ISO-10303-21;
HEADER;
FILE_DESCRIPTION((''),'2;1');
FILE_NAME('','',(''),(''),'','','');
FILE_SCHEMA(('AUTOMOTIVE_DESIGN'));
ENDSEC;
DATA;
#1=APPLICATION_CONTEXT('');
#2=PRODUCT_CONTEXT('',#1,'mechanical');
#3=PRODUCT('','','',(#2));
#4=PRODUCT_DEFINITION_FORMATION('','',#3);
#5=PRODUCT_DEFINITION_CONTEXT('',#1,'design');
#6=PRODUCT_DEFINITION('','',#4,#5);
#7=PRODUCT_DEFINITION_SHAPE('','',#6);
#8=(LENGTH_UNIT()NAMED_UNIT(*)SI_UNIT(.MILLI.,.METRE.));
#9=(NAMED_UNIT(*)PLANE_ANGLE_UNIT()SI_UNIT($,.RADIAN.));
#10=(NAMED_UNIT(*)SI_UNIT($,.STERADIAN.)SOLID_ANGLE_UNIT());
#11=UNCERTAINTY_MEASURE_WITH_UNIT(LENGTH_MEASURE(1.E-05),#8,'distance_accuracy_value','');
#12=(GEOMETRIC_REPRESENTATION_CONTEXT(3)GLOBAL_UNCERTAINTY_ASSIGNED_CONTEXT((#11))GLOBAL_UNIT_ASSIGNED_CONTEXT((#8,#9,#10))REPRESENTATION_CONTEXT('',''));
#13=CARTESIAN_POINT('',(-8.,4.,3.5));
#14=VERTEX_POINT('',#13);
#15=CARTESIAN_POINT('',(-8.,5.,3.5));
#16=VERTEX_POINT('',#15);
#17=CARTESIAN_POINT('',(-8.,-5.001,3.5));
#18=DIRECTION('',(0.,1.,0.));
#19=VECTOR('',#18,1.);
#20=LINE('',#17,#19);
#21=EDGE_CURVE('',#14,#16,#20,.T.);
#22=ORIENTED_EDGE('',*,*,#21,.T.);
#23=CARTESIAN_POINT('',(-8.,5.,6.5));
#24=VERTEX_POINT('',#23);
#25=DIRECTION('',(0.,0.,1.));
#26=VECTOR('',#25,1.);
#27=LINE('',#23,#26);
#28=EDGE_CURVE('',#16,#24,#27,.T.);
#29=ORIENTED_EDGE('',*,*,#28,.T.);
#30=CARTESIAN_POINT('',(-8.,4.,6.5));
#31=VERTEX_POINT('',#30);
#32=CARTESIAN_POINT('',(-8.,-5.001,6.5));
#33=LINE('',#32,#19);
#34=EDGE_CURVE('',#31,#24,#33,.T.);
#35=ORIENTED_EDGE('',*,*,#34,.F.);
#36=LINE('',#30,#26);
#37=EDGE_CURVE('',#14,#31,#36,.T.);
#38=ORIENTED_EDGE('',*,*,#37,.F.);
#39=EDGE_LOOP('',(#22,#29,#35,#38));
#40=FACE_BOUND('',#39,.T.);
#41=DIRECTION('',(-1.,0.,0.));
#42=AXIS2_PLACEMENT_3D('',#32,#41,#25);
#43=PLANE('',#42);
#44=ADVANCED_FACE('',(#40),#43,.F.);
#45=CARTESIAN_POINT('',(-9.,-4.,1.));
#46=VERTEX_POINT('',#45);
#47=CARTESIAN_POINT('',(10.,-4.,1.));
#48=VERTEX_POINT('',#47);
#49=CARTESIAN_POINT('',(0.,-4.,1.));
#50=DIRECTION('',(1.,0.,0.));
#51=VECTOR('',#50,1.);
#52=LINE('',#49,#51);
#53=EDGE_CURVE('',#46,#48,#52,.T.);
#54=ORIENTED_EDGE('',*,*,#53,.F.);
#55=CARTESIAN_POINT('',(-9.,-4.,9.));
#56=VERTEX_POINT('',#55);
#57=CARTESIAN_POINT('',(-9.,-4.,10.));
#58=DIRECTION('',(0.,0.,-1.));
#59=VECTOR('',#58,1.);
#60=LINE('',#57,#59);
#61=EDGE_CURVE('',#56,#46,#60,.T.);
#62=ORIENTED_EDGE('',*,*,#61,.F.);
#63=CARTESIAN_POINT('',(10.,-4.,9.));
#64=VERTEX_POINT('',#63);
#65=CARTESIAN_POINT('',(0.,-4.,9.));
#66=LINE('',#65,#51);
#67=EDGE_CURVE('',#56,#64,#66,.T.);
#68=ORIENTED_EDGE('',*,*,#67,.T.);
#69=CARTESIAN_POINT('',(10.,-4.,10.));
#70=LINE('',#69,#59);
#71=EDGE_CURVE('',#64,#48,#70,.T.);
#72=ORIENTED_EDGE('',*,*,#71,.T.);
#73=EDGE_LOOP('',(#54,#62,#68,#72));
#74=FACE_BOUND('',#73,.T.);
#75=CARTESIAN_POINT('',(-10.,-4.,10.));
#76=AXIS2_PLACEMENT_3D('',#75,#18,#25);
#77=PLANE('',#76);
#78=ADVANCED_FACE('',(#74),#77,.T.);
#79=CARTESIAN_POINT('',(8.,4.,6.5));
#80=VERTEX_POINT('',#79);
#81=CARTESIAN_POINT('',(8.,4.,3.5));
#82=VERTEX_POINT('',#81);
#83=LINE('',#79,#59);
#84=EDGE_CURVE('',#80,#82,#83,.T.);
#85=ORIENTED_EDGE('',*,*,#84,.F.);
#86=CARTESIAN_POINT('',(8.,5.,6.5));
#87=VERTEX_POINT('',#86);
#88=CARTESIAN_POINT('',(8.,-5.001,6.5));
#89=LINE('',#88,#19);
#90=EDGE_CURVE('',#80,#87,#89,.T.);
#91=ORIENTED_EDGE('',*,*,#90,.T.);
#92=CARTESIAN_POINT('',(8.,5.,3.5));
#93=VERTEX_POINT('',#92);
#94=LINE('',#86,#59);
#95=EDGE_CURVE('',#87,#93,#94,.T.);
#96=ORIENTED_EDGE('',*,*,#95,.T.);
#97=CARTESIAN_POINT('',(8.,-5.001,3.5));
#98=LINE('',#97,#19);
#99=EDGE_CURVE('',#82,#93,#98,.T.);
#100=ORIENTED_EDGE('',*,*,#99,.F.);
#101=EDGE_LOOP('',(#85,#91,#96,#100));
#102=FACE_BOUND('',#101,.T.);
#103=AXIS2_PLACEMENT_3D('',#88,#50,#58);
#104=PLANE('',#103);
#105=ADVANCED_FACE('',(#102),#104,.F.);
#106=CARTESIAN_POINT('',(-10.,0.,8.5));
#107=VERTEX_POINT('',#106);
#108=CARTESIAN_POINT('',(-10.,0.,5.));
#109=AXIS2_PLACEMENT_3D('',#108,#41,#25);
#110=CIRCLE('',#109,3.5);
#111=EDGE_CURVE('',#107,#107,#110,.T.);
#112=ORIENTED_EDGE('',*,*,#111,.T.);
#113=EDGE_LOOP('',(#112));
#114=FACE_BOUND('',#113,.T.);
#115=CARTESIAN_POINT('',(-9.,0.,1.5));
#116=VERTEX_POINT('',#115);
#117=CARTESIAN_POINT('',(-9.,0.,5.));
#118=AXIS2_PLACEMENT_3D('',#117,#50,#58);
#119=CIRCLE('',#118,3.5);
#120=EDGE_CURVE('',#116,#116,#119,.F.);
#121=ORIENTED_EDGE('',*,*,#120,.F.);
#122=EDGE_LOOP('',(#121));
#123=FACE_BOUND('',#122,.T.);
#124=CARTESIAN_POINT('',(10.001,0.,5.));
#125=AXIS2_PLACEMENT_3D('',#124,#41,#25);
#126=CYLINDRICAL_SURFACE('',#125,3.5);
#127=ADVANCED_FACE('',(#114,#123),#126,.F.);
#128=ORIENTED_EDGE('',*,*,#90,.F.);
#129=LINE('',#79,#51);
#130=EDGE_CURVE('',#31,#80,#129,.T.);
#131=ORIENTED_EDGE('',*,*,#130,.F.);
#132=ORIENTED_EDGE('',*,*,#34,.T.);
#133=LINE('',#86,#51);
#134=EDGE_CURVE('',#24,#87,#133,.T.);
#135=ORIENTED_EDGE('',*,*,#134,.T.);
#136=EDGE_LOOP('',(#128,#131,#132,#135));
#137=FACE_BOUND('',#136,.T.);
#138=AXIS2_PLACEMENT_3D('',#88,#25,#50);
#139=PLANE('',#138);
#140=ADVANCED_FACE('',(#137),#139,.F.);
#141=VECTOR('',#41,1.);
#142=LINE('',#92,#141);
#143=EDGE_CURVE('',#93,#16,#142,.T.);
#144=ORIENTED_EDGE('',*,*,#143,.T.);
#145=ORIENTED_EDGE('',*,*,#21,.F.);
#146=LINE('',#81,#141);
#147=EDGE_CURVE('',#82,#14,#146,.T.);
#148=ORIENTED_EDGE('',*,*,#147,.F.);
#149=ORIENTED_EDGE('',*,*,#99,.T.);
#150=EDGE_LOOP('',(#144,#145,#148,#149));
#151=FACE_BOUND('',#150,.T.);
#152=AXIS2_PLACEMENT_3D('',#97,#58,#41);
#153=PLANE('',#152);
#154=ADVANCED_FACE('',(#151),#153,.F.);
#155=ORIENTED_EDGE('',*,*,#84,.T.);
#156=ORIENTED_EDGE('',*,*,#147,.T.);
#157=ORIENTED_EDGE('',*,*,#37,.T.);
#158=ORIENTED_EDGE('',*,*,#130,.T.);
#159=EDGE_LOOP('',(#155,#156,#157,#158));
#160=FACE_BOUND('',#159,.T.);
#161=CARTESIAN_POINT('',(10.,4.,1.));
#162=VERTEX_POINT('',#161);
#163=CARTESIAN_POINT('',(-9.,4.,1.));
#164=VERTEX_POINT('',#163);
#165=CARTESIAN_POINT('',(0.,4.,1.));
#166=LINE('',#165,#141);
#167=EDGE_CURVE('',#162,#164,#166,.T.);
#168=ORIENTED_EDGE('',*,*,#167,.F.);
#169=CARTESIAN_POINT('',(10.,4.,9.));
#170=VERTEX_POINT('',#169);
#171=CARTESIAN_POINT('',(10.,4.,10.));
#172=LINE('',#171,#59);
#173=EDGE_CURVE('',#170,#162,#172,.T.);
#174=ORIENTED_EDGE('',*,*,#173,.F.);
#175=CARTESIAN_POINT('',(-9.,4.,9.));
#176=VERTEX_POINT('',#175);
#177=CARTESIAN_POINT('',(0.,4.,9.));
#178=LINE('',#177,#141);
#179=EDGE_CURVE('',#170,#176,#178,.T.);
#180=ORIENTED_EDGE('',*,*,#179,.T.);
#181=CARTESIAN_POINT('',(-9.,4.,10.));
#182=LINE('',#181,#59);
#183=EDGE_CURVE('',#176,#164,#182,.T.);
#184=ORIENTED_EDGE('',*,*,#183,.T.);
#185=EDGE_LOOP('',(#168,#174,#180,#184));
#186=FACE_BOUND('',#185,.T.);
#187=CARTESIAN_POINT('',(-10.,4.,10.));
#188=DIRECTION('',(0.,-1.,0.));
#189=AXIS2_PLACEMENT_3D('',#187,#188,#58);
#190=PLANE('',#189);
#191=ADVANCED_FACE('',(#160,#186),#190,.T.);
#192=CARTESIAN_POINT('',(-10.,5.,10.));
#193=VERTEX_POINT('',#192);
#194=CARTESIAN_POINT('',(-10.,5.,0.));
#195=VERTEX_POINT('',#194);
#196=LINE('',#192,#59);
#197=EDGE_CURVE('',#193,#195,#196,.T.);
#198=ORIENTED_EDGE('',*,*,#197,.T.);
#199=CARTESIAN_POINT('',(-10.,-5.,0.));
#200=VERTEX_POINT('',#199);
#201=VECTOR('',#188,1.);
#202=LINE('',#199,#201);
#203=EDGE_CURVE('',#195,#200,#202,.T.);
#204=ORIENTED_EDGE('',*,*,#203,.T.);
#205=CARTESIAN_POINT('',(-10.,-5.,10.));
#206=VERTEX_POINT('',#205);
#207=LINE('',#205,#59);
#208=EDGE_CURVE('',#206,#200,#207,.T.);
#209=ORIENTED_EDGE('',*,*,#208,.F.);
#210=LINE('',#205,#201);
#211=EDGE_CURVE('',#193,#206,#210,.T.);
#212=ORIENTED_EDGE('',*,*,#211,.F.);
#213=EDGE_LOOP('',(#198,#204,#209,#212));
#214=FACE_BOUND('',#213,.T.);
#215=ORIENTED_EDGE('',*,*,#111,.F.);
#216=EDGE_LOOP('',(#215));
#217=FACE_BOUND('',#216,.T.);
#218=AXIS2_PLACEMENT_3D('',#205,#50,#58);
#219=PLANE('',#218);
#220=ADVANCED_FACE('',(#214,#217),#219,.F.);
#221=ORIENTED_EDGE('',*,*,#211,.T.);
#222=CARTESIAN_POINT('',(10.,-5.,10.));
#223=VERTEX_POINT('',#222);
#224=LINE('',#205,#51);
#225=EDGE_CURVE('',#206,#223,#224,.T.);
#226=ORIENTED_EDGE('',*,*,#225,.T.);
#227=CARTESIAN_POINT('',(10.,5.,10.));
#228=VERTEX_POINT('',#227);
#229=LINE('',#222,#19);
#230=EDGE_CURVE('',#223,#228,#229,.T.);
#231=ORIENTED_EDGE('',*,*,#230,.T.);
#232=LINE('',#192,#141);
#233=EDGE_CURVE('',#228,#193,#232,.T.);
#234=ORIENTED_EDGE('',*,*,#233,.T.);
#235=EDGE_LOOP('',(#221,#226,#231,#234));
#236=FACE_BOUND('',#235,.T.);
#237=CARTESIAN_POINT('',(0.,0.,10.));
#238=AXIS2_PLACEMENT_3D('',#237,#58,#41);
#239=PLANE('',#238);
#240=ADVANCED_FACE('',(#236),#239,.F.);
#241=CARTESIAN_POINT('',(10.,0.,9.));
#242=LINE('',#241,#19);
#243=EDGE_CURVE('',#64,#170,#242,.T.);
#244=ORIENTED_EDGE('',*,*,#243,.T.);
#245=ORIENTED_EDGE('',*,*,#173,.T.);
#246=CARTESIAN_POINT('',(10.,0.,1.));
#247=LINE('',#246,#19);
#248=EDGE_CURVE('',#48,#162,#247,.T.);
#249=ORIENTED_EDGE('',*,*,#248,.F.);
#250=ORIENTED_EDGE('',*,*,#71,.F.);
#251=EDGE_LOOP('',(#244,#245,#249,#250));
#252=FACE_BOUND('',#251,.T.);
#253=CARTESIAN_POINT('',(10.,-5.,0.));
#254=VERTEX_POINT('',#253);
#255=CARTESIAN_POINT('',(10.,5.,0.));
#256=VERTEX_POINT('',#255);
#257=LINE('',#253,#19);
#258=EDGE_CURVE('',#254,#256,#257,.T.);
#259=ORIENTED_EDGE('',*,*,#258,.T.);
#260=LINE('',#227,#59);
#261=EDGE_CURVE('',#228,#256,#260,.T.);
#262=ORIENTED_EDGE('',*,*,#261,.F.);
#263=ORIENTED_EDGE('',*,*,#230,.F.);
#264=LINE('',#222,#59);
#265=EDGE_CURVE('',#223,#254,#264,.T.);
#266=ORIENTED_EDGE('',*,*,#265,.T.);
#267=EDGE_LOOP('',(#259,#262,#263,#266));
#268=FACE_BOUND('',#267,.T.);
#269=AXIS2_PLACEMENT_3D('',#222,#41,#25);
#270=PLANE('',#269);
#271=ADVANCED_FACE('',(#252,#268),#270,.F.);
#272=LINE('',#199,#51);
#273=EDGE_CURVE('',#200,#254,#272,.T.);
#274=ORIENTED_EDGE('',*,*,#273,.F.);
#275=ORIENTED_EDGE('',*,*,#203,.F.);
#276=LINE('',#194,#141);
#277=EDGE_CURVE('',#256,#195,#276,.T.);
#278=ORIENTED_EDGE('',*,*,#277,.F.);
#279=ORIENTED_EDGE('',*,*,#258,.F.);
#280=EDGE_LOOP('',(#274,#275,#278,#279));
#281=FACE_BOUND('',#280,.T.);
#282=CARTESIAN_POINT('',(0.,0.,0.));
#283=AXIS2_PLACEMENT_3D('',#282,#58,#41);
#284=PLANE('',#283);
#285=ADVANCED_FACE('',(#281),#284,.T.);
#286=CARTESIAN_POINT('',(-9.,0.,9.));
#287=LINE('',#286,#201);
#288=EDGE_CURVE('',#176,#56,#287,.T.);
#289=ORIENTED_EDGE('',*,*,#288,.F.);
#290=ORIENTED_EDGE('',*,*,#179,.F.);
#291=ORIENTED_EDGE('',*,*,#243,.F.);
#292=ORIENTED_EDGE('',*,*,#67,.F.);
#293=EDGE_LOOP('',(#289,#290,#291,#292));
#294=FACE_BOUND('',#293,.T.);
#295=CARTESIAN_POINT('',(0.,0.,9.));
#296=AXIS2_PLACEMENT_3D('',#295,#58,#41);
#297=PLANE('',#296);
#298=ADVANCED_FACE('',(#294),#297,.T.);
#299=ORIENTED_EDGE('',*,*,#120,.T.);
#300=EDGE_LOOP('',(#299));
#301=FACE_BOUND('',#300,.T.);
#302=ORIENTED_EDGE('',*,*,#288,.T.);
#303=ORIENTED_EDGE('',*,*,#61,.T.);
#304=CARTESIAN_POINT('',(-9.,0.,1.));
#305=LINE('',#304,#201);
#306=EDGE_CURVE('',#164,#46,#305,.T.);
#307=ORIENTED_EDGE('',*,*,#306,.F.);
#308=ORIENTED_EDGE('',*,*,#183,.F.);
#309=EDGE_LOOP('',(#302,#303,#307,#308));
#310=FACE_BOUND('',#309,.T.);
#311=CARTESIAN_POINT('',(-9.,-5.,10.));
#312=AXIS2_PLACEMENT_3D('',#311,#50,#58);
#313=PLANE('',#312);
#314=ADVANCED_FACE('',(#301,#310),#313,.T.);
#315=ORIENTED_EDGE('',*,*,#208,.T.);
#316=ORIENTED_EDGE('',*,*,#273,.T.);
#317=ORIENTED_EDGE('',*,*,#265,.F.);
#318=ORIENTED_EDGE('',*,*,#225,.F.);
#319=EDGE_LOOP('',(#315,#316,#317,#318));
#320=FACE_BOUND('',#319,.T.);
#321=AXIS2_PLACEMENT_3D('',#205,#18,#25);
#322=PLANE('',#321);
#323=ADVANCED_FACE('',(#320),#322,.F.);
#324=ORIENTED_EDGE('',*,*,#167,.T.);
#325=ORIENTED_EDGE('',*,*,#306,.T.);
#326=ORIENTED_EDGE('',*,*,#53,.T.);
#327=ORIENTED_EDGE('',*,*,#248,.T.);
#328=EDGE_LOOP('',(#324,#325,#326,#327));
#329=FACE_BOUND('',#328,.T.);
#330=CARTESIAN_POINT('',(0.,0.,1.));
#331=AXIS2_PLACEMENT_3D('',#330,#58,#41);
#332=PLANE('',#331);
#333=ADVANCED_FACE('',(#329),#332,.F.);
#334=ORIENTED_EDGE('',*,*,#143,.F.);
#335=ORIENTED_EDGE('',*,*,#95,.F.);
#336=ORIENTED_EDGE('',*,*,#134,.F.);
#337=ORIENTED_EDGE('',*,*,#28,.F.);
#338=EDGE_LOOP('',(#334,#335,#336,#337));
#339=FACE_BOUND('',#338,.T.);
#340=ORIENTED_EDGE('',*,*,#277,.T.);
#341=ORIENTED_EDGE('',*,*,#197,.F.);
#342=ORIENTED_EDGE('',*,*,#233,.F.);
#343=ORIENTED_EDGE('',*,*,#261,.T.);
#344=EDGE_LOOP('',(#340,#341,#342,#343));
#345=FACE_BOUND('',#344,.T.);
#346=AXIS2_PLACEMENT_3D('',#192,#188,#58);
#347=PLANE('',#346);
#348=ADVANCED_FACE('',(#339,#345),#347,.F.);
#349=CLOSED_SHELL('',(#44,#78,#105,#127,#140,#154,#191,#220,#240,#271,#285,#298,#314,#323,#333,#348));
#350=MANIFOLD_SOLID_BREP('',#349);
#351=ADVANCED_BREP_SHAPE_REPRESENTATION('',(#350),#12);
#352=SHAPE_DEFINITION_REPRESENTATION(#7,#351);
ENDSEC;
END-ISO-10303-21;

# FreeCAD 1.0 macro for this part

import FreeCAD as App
import Part
import Sketcher
from FreeCAD import Vector


def faces_at(feature, points):
    """Names of the faces that lie closest to the given points."""
    faces = feature.Shape.Faces
    near = lambda p: min(range(len(faces)), key=lambda i: faces[i].distToShape(Part.Vertex(*p))[0])
    return sorted({f"Face{near(p) + 1}" for p in points})

doc = App.newDocument("Part")
params = doc.addObject("Spreadsheet::Sheet", "Params")
for row, (alias, value) in enumerate([
    ("sketch1_width", "20 mm"),
    ("sketch1_height", "10 mm"),
    ("pad1_length", "10 mm"),
    ("thickness_wall", "1 mm"),
    ("sketch2_diameter", "7 mm"),
    ("sketch3_width", "16 mm"),
    ("sketch3_height", "3 mm"),
], start=1):
    params.set(f"A{row}", alias)
    params.set(f"B{row}", "=" + value)
    params.setAlias(f"B{row}", alias)

body = doc.addObject("PartDesign::Body", "Body")

# Sketch on XY plane
sketch1 = body.newObject("Sketcher::SketchObject", "Sketch")
sketch1.AttachmentSupport = (doc.getObject("XY_Plane"), [""])
sketch1.MapMode = "FlatFace"
sketch1.addGeometry([
    Part.LineSegment(Vector(-10, 5, 0), Vector(-10, -5, 0)),
    Part.LineSegment(Vector(-10, -5, 0), Vector(10, -5, 0)),
    Part.LineSegment(Vector(10, -5, 0), Vector(10, 5, 0)),
    Part.LineSegment(Vector(10, 5, 0), Vector(-10, 5, 0)),
], False)
sketch1.addConstraint([
    Sketcher.Constraint("Coincident", 0, 2, 1, 1),
    Sketcher.Constraint("Coincident", 1, 2, 2, 1),
    Sketcher.Constraint("Coincident", 2, 2, 3, 1),
    Sketcher.Constraint("Coincident", 3, 2, 0, 1),
    Sketcher.Constraint("Vertical", 0),
    Sketcher.Constraint("Horizontal", 1),
    Sketcher.Constraint("Vertical", 2),
    Sketcher.Constraint("Horizontal", 3),
    Sketcher.Constraint("Symmetric", 0, 2, 2, 2, -1, 1),
    Sketcher.Constraint("DistanceX", 1, 1, 1, 2, 20.0),
    Sketcher.Constraint("DistanceY", 0, 2, 0, 1, 10.0),
])
sketch1.setExpression("Constraints[9]", "Params.sketch1_width")
sketch1.setExpression("Constraints[10]", "Params.sketch1_height")
pad1 = body.newObject("PartDesign::Pad", "Pad")
pad1.Profile = sketch1
pad1.setExpression("Length", "Params.pad1_length")
doc.recompute()

thickness = body.newObject("PartDesign::Thickness", "Thickness")
thickness.Base = (pad1, faces_at(pad1, [(10, 0, 5)]))
thickness.setExpression("Value", "Params.thickness_wall")
thickness.Reversed = True
thickness.Join = "Intersection"

# Sketch on YZ plane
sketch2 = body.newObject("Sketcher::SketchObject", "Sketch001")
sketch2.AttachmentSupport = (doc.getObject("YZ_Plane"), [""])
sketch2.MapMode = "FlatFace"
sketch2.AttachmentOffset = App.Placement(Vector(0, 0, -10), App.Rotation())
sketch2.addGeometry(Part.Circle(Vector(0, 5, 0), Vector(0, 0, 1), 3.5), False)
sketch2.addConstraint([
    Sketcher.Constraint("PointOnObject", 0, 3, -2),
    Sketcher.Constraint("Diameter", 0, 7.0),
    Sketcher.Constraint("DistanceY", -1, 1, 0, 3, 5.0),
])
sketch2.setExpression("Constraints[1]", "Params.sketch2_diameter")
pocket1 = body.newObject("PartDesign::Pocket", "Pocket")
pocket1.Profile = sketch2
pocket1.Type = "UpToFirst"
pocket1.Reversed = True

# Sketch on XZ plane
sketch3 = body.newObject("Sketcher::SketchObject", "Sketch002")
sketch3.AttachmentSupport = (doc.getObject("XZ_Plane"), [""])
sketch3.MapMode = "FlatFace"
sketch3.AttachmentOffset = App.Placement(Vector(0, 0, -5), App.Rotation())
sketch3.addGeometry([
    Part.LineSegment(Vector(-8, 3.5, 0), Vector(-8, 6.5, 0)),
    Part.LineSegment(Vector(-8, 6.5, 0), Vector(8, 6.5, 0)),
    Part.LineSegment(Vector(8, 6.5, 0), Vector(8, 3.5, 0)),
    Part.LineSegment(Vector(8, 3.5, 0), Vector(-8, 3.5, 0)),
], False)
sketch3.addConstraint([
    Sketcher.Constraint("Coincident", 0, 2, 1, 1),
    Sketcher.Constraint("Coincident", 1, 2, 2, 1),
    Sketcher.Constraint("Coincident", 2, 2, 3, 1),
    Sketcher.Constraint("Coincident", 3, 2, 0, 1),
    Sketcher.Constraint("Vertical", 0),
    Sketcher.Constraint("Horizontal", 1),
    Sketcher.Constraint("Vertical", 2),
    Sketcher.Constraint("Horizontal", 3),
    Sketcher.Constraint("DistanceX", 1, 1, 1, 2, 16.0),
    Sketcher.Constraint("DistanceY", 0, 1, 0, 2, 3.0),
    Sketcher.Constraint("DistanceX", 0, 2, -1, 1, 8.0),
    Sketcher.Constraint("DistanceY", -1, 1, 0, 2, 6.5),
])
sketch3.setExpression("Constraints[8]", "Params.sketch3_width")
sketch3.setExpression("Constraints[9]", "Params.sketch3_height")
pocket2 = body.newObject("PartDesign::Pocket", "Pocket001")
pocket2.Profile = sketch3
pocket2.Type = "UpToFirst"
pocket2.Reversed = True

doc.recompute()
